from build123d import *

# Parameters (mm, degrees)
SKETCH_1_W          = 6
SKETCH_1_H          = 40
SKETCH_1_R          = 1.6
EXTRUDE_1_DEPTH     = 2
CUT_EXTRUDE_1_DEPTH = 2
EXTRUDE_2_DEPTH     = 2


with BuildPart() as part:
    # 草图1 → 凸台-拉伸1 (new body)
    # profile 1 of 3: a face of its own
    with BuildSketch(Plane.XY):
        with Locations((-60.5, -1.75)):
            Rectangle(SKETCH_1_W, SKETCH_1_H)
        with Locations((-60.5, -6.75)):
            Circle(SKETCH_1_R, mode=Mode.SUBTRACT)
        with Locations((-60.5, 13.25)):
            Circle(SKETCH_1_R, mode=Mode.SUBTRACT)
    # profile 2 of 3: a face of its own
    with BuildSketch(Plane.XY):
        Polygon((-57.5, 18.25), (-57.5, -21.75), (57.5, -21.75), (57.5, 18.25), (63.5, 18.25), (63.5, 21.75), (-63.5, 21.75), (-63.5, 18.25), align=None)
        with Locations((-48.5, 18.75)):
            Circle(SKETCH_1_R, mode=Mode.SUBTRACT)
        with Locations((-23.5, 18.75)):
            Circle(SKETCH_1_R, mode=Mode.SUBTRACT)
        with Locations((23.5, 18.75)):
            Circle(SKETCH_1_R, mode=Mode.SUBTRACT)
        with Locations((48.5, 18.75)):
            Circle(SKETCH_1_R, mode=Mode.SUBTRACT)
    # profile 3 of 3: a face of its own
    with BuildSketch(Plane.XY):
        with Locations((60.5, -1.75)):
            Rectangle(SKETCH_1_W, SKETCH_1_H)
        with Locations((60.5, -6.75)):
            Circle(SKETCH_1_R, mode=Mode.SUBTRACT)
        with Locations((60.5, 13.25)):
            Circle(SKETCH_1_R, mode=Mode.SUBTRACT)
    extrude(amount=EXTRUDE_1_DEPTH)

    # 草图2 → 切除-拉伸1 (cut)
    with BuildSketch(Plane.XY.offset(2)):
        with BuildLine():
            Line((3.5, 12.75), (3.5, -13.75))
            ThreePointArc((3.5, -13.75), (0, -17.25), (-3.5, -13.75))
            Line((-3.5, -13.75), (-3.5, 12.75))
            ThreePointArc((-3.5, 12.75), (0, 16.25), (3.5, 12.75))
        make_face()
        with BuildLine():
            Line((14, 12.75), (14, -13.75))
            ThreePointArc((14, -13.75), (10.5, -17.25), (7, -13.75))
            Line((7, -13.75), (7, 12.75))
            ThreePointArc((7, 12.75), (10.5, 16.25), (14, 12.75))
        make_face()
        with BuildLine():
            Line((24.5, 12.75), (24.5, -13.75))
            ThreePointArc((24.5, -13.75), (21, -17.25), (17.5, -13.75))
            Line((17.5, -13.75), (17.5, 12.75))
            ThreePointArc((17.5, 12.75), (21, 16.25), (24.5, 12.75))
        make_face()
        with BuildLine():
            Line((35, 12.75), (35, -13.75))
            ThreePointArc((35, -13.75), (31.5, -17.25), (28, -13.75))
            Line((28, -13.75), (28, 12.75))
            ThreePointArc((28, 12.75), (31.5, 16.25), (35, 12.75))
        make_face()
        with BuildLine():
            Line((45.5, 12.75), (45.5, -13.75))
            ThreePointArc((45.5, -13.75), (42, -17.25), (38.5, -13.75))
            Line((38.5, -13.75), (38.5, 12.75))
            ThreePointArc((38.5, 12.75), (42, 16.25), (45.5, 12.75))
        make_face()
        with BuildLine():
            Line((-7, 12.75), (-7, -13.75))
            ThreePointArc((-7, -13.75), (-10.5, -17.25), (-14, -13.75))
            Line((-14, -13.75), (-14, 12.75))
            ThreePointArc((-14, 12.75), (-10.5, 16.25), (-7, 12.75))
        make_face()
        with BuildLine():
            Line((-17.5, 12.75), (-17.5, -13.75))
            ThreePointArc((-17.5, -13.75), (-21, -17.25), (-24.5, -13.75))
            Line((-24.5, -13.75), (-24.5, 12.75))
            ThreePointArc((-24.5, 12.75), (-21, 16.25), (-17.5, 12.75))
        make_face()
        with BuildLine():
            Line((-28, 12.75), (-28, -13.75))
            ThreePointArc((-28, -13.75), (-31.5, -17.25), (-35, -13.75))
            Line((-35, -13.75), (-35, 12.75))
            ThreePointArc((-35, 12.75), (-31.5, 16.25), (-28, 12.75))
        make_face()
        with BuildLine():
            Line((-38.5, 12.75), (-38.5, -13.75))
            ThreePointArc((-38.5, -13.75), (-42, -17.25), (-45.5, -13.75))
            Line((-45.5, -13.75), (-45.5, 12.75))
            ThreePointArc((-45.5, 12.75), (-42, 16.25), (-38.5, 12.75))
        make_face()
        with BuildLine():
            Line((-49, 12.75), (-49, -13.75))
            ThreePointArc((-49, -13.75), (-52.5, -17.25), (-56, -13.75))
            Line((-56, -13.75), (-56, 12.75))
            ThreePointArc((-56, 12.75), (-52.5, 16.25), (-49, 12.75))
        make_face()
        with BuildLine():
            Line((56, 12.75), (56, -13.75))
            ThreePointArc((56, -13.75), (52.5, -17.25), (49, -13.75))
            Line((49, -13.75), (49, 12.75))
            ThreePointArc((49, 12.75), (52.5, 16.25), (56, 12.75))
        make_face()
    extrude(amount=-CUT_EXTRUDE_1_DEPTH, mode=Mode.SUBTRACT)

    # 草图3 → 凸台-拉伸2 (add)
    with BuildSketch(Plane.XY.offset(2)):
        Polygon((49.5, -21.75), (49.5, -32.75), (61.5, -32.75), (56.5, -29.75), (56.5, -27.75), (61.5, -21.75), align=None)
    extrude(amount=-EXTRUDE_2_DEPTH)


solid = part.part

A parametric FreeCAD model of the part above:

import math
import FreeCAD as App
import Part
import Sketcher
from FreeCAD import Vector


def add_polygon(sketch, points):
    """Adds a closed chain of lines whose ends are joined by coincident constraints."""
    first, n = sketch.GeometryCount, len(points)
    for a, b in zip(points, points[1:] + points[:1]):
        sketch.addGeometry(Part.LineSegment(App.Vector(*a, 0), App.Vector(*b, 0)), False)
    for i in range(n):
        sketch.addConstraint(Sketcher.Constraint("Coincident", first + i, 2, first + (i + 1) % n, 1))

doc = App.newDocument("Part")
body = doc.addObject("PartDesign::Body", "Body")

sketch1 = body.newObject("Sketcher::SketchObject", "Sketch")
sketch1.AttachmentSupport = (doc.getObject("XY_Plane"), [""])
sketch1.MapMode = "FlatFace"
add_polygon(sketch1, [(-63.5, -21.8), (63.5, -21.8), (63.5, 21.8), (-63.5, 21.8)])
sketch1.addGeometry(Part.Circle(Vector(-60.5, -6.8, 0), Vector(0, 0, 1), 1.6), False)
sketch1.addGeometry(Part.Circle(Vector(-60.5, 13.2, 0), Vector(0, 0, 1), 1.6), False)
sketch1.addGeometry(Part.Circle(Vector(23.5, 18.8, 0), Vector(0, 0, 1), 1.6), False)
sketch1.addGeometry(Part.Circle(Vector(48.5, 18.8, 0), Vector(0, 0, 1), 1.6), False)
sketch1.addGeometry(Part.Circle(Vector(-48.5, 18.8, 0), Vector(0, 0, 1), 1.6), False)
sketch1.addGeometry(Part.Circle(Vector(-23.5, 18.8, 0), Vector(0, 0, 1), 1.6), False)
sketch1.addGeometry(Part.Circle(Vector(60.5, 13.2, 0), Vector(0, 0, 1), 1.6), False)
sketch1.addGeometry(Part.Circle(Vector(60.5, -6.8, 0), Vector(0, 0, 1), 1.6), False)
sketch1.addConstraint([
    Sketcher.Constraint("Horizontal", 0),
    Sketcher.Constraint("Vertical", 1),
    Sketcher.Constraint("Horizontal", 2),
    Sketcher.Constraint("Vertical", 3),
    Sketcher.Constraint("Equal", 4, 5),
    Sketcher.Constraint("Equal", 5, 6),
    Sketcher.Constraint("Equal", 6, 7),
    Sketcher.Constraint("Equal", 7, 8),
    Sketcher.Constraint("Equal", 8, 9),
    Sketcher.Constraint("Equal", 9, 10),
    Sketcher.Constraint("Equal", 10, 11),
    Sketcher.Constraint("Symmetric", 0, 2, 2, 2, -1, 1),
    Sketcher.Constraint("Symmetric", 7, 3, 8, 3, -2),
    Sketcher.Constraint("Symmetric", 6, 3, 9, 3, -2),
    Sketcher.Constraint("Symmetric", 5, 3, 10, 3, -2),
    Sketcher.Constraint("Symmetric", 4, 3, 11, 3, -2),
    Sketcher.Constraint("Horizontal", 6, 3, 7, 3),
    Sketcher.Constraint("Vertical", 4, 3, 5, 3),
    Sketcher.Constraint("Diameter", 4, 3.2),
    Sketcher.Constraint("DistanceX", 0, 1, 0, 2, 127.0),
    Sketcher.Constraint("DistanceY", 1, 1, 1, 2, 43.5),
    Sketcher.Constraint("DistanceY", 4, 3, 5, 3, 20.0),
    Sketcher.Constraint("DistanceX", 5, 3, 6, 3, 84.0),
    Sketcher.Constraint("DistanceX", 6, 3, 7, 3, 25.0),
    Sketcher.Constraint("DistanceX", 5, 3, 8, 3, 12.0),
    Sketcher.Constraint("DistanceY", 0, 2, 11, 3, 15.0),
    Sketcher.Constraint("DistanceY", 7, 3, 1, 2, 3.0),
])
pad1 = body.newObject("PartDesign::Pad", "Pad")
pad1.Profile = sketch1
pad1.Length = 2

sketch2 = body.newObject("Sketcher::SketchObject", "Sketch001")
sketch2.AttachmentSupport = (doc.getObject("XY_Plane"), [""])
sketch2.MapMode = "FlatFace"
sketch2.AttachmentOffset = App.Placement(Vector(0, 0, 2), App.Rotation())
sketch2.addGeometry([
    Part.LineSegment(Vector(3.5, -13.8, 0), Vector(3.5, 12.8, 0)),
    Part.ArcOfCircle(Part.Circle(Vector(0, 12.8, 0), Vector(0, 0, 1), 3.5), math.radians(0), math.radians(180)),
    Part.LineSegment(Vector(-3.5, 12.8, 0), Vector(-3.5, -13.8, 0)),
    Part.ArcOfCircle(Part.Circle(Vector(0, -13.8, 0), Vector(0, 0, 1), 3.5), math.radians(180), math.radians(360)),
    Part.LineSegment(Vector(14, -13.8, 0), Vector(14, 12.8, 0)),
    Part.ArcOfCircle(Part.Circle(Vector(10.5, 12.8, 0), Vector(0, 0, 1), 3.5), math.radians(0), math.radians(180)),
    Part.LineSegment(Vector(7, 12.8, 0), Vector(7, -13.8, 0)),
    Part.ArcOfCircle(Part.Circle(Vector(10.5, -13.8, 0), Vector(0, 0, 1), 3.5), math.radians(180), math.radians(360)),
    Part.LineSegment(Vector(24.5, -13.8, 0), Vector(24.5, 12.8, 0)),
    Part.ArcOfCircle(Part.Circle(Vector(21, 12.8, 0), Vector(0, 0, 1), 3.5), math.radians(0), math.radians(180)),
    Part.LineSegment(Vector(17.5, 12.8, 0), Vector(17.5, -13.8, 0)),
    Part.ArcOfCircle(Part.Circle(Vector(21, -13.8, 0), Vector(0, 0, 1), 3.5), math.radians(180), math.radians(360)),
    Part.LineSegment(Vector(35, -13.8, 0), Vector(35, 12.8, 0)),
    Part.ArcOfCircle(Part.Circle(Vector(31.5, 12.8, 0), Vector(0, 0, 1), 3.5), math.radians(0), math.radians(180)),
    Part.LineSegment(Vector(28, 12.8, 0), Vector(28, -13.8, 0)),
    Part.ArcOfCircle(Part.Circle(Vector(31.5, -13.8, 0), Vector(0, 0, 1), 3.5), math.radians(180), math.radians(360)),
    Part.LineSegment(Vector(45.5, -13.8, 0), Vector(45.5, 12.8, 0)),
    Part.ArcOfCircle(Part.Circle(Vector(42, 12.8, 0), Vector(0, 0, 1), 3.5), math.radians(0), math.radians(180)),
    Part.LineSegment(Vector(38.5, 12.8, 0), Vector(38.5, -13.8, 0)),
    Part.ArcOfCircle(Part.Circle(Vector(42, -13.8, 0), Vector(0, 0, 1), 3.5), math.radians(180), math.radians(360)),
    Part.LineSegment(Vector(-7, -13.8, 0), Vector(-7, 12.8, 0)),
    Part.ArcOfCircle(Part.Circle(Vector(-10.5, 12.8, 0), Vector(0, 0, 1), 3.5), math.radians(0), math.radians(180)),
    Part.LineSegment(Vector(-14, 12.8, 0), Vector(-14, -13.8, 0)),
    Part.ArcOfCircle(Part.Circle(Vector(-10.5, -13.8, 0), Vector(0, 0, 1), 3.5), math.radians(180), math.radians(360)),
    Part.LineSegment(Vector(-17.5, -13.8, 0), Vector(-17.5, 12.8, 0)),
    Part.ArcOfCircle(Part.Circle(Vector(-21, 12.8, 0), Vector(0, 0, 1), 3.5), math.radians(0), math.radians(180)),
    Part.LineSegment(Vector(-24.5, 12.8, 0), Vector(-24.5, -13.8, 0)),
    Part.ArcOfCircle(Part.Circle(Vector(-21, -13.8, 0), Vector(0, 0, 1), 3.5), math.radians(180), math.radians(360)),
    Part.LineSegment(Vector(-28, -13.8, 0), Vector(-28, 12.8, 0)),
    Part.ArcOfCircle(Part.Circle(Vector(-31.5, 12.8, 0), Vector(0, 0, 1), 3.5), math.radians(0), math.radians(180)),
    Part.LineSegment(Vector(-35, 12.8, 0), Vector(-35, -13.8, 0)),
    Part.ArcOfCircle(Part.Circle(Vector(-31.5, -13.8, 0), Vector(0, 0, 1), 3.5), math.radians(180), math.radians(360)),
    Part.LineSegment(Vector(-38.5, -13.8, 0), Vector(-38.5, 12.8, 0)),
    Part.ArcOfCircle(Part.Circle(Vector(-42, 12.8, 0), Vector(0, 0, 1), 3.5), math.radians(0), math.radians(180)),
    Part.LineSegment(Vector(-45.5, 12.8, 0), Vector(-45.5, -13.8, 0)),
    Part.ArcOfCircle(Part.Circle(Vector(-42, -13.8, 0), Vector(0, 0, 1), 3.5), math.radians(180), math.radians(360)),
    Part.LineSegment(Vector(-49, -13.8, 0), Vector(-49, 12.8, 0)),
    Part.ArcOfCircle(Part.Circle(Vector(-52.5, 12.8, 0), Vector(0, 0, 1), 3.5), math.radians(0), math.radians(180)),
    Part.LineSegment(Vector(-56, 12.8, 0), Vector(-56, -13.8, 0)),
    Part.ArcOfCircle(Part.Circle(Vector(-52.5, -13.8, 0), Vector(0, 0, 1), 3.5), math.radians(180), math.radians(360)),
    Part.LineSegment(Vector(56, -13.8, 0), Vector(56, 12.8, 0)),
    Part.ArcOfCircle(Part.Circle(Vector(52.5, 12.8, 0), Vector(0, 0, 1), 3.5), math.radians(0), math.radians(180)),
    Part.LineSegment(Vector(49, 12.8, 0), Vector(49, -13.8, 0)),
    Part.ArcOfCircle(Part.Circle(Vector(52.5, -13.8, 0), Vector(0, 0, 1), 3.5), math.radians(180), math.radians(360)),
], False)
sketch2.addConstraint([
    Sketcher.Constraint("Tangent", 0, 2, 1, 1),
    Sketcher.Constraint("Tangent", 1, 2, 2, 1),
    Sketcher.Constraint("Tangent", 2, 2, 3, 1),
    Sketcher.Constraint("Tangent", 3, 2, 0, 1),
    Sketcher.Constraint("Tangent", 4, 2, 5, 1),
    Sketcher.Constraint("Tangent", 5, 2, 6, 1),
    Sketcher.Constraint("Tangent", 6, 2, 7, 1),
    Sketcher.Constraint("Tangent", 7, 2, 4, 1),
    Sketcher.Constraint("Tangent", 8, 2, 9, 1),
    Sketcher.Constraint("Tangent", 9, 2, 10, 1),
    Sketcher.Constraint("Tangent", 10, 2, 11, 1),
    Sketcher.Constraint("Tangent", 11, 2, 8, 1),
    Sketcher.Constraint("Tangent", 12, 2, 13, 1),
    Sketcher.Constraint("Tangent", 13, 2, 14, 1),
    Sketcher.Constraint("Tangent", 14, 2, 15, 1),
    Sketcher.Constraint("Tangent", 15, 2, 12, 1),
    Sketcher.Constraint("Tangent", 16, 2, 17, 1),
    Sketcher.Constraint("Tangent", 17, 2, 18, 1),
    Sketcher.Constraint("Tangent", 18, 2, 19, 1),
    Sketcher.Constraint("Tangent", 19, 2, 16, 1),
    Sketcher.Constraint("Tangent", 20, 2, 21, 1),
    Sketcher.Constraint("Tangent", 21, 2, 22, 1),
    Sketcher.Constraint("Tangent", 22, 2, 23, 1),
    Sketcher.Constraint("Tangent", 23, 2, 20, 1),
    Sketcher.Constraint("Tangent", 24, 2, 25, 1),
    Sketcher.Constraint("Tangent", 25, 2, 26, 1),
    Sketcher.Constraint("Tangent", 26, 2, 27, 1),
    Sketcher.Constraint("Tangent", 27, 2, 24, 1),
    Sketcher.Constraint("Tangent", 28, 2, 29, 1),
    Sketcher.Constraint("Tangent", 29, 2, 30, 1),
    Sketcher.Constraint("Tangent", 30, 2, 31, 1),
    Sketcher.Constraint("Tangent", 31, 2, 28, 1),
    Sketcher.Constraint("Tangent", 32, 2, 33, 1),
    Sketcher.Constraint("Tangent", 33, 2, 34, 1),
    Sketcher.Constraint("Tangent", 34, 2, 35, 1),
    Sketcher.Constraint("Tangent", 35, 2, 32, 1),
    Sketcher.Constraint("Tangent", 36, 2, 37, 1),
    Sketcher.Constraint("Tangent", 37, 2, 38, 1),
    Sketcher.Constraint("Tangent", 38, 2, 39, 1),
    Sketcher.Constraint("Tangent", 39, 2, 36, 1),
    Sketcher.Constraint("Tangent", 40, 2, 41, 1),
    Sketcher.Constraint("Tangent", 41, 2, 42, 1),
    Sketcher.Constraint("Tangent", 42, 2, 43, 1),
    Sketcher.Constraint("Tangent", 43, 2, 40, 1),
    Sketcher.Constraint("Vertical", 0),
    Sketcher.Constraint("Vertical", 2),
    Sketcher.Constraint("Vertical", 4),
    Sketcher.Constraint("Vertical", 6),
    Sketcher.Constraint("Vertical", 8),
    Sketcher.Constraint("Vertical", 10),
    Sketcher.Constraint("Vertical", 12),
    Sketcher.Constraint("Vertical", 14),
    Sketcher.Constraint("Vertical", 16),
    Sketcher.Constraint("Vertical", 18),
    Sketcher.Constraint("Vertical", 20),
    Sketcher.Constraint("Vertical", 22),
    Sketcher.Constraint("Vertical", 24),
    Sketcher.Constraint("Vertical", 26),
    Sketcher.Constraint("Vertical", 28),
    Sketcher.Constraint("Vertical", 30),
    Sketcher.Constraint("Vertical", 32),
    Sketcher.Constraint("Vertical", 34),
    Sketcher.Constraint("Vertical", 36),
    Sketcher.Constraint("Vertical", 38),
    Sketcher.Constraint("Vertical", 40),
    Sketcher.Constraint("Vertical", 42),
    Sketcher.Constraint("Equal", 3, 5),
    Sketcher.Constraint("Equal", 7, 9),
    Sketcher.Constraint("Equal", 11, 13),
    Sketcher.Constraint("Equal", 15, 17),
    Sketcher.Constraint("Equal", 19, 21),
    Sketcher.Constraint("Equal", 23, 25),
    Sketcher.Constraint("Equal", 27, 29),
    Sketcher.Constraint("Equal", 31, 33),
    Sketcher.Constraint("Equal", 35, 37),
    Sketcher.Constraint("Equal", 39, 41),
    Sketcher.Constraint("Symmetric", 5, 3, 21, 3, -2),
    Sketcher.Constraint("Symmetric", 9, 3, 25, 3, -2),
    Sketcher.Constraint("Symmetric", 13, 3, 29, 3, -2),
    Sketcher.Constraint("Symmetric", 17, 3, 33, 3, -2),
    Sketcher.Constraint("Symmetric", 37, 3, 41, 3, -2),
    Sketcher.Constraint("PointOnObject", 1, 3, -2),
    Sketcher.Constraint("Horizontal", 1, 3, 5, 3),
    Sketcher.Constraint("Horizontal", 3, 3, 7, 3),
    Sketcher.Constraint("Horizontal", 5, 3, 9, 3),
    Sketcher.Constraint("Horizontal", 7, 3, 11, 3),
    Sketcher.Constraint("Horizontal", 9, 3, 13, 3),
    Sketcher.Constraint("Horizontal", 11, 3, 15, 3),
    Sketcher.Constraint("Horizontal", 13, 3, 17, 3),
    Sketcher.Constraint("Horizontal", 15, 3, 19, 3),
    Sketcher.Constraint("Horizontal", 19, 3, 23, 3),
    Sketcher.Constraint("Horizontal", 23, 3, 27, 3),
    Sketcher.Constraint("Horizontal", 27, 3, 31, 3),
    Sketcher.Constraint("Horizontal", 31, 3, 35, 3),
    Sketcher.Constraint("Horizontal", 33, 3, 37, 3),
    Sketcher.Constraint("Horizontal", 35, 3, 39, 3),
    Sketcher.Constraint("Horizontal", 39, 3, 43, 3),
    Sketcher.Constraint("Radius", 1, 3.5),
    Sketcher.Constraint("DistanceY", 0, 1, 0, 2, 26.5),
    Sketcher.Constraint("DistanceX", -1, 1, 9, 3, 21.0),
    Sketcher.Constraint("DistanceX", -1, 1, 17, 3, 42.0),
    Sketcher.Constraint("DistanceX", -1, 1, 4, 2, 14.0),
    Sketcher.Constraint("DistanceX", -1, 1, 12, 2, 35.0),
    Sketcher.Constraint("DistanceX", 36, 2, -1, 1, 49.0),
    Sketcher.Constraint("DistanceY", -1, 1, 1, 3, 12.75),
])
pocket1 = body.newObject("PartDesign::Pocket", "Pocket")
pocket1.Profile = sketch2
pocket1.Length = 2

sketch3 = body.newObject("Sketcher::SketchObject", "Sketch002")
sketch3.AttachmentSupport = (doc.getObject("XY_Plane"), [""])
sketch3.MapMode = "FlatFace"
sketch3.AttachmentOffset = App.Placement(Vector(0, 0, 2), App.Rotation())
add_polygon(sketch3, [(49.5, -21.8), (49.5, -32.8), (61.5, -32.8), (56.5, -29.8), (56.5, -27.8), (61.5, -21.8)])
sketch3.addConstraint([
    Sketcher.Constraint("Vertical", 0),
    Sketcher.Constraint("Horizontal", 1),
    Sketcher.Constraint("Vertical", 3),
    Sketcher.Constraint("Horizontal", 5),
    Sketcher.Constraint("Vertical", 1, 2, 4, 2),
    Sketcher.Constraint("DistanceX", 1, 1, 1, 2, 12.0),
    Sketcher.Constraint("DistanceY", 0, 2, 0, 1, 11.0),
    Sketcher.Constraint("DistanceY", 3, 1, 3, 2, 2.0),
    Sketcher.Constraint("DistanceX", 2, 2, 1, 2, 5.0),
    Sketcher.Constraint("DistanceY", 1, 2, 2, 2, 3.0),
    Sketcher.Constraint("DistanceX", -1, 1, 0, 2, 49.5),
    Sketcher.Constraint("DistanceY", 0, 2, -1, 1, 32.75),
])
pad2 = body.newObject("PartDesign::Pad", "Pad001")
pad2.Profile = sketch3
pad2.Length = 2
pad2.Reversed = True

doc.recompute()
